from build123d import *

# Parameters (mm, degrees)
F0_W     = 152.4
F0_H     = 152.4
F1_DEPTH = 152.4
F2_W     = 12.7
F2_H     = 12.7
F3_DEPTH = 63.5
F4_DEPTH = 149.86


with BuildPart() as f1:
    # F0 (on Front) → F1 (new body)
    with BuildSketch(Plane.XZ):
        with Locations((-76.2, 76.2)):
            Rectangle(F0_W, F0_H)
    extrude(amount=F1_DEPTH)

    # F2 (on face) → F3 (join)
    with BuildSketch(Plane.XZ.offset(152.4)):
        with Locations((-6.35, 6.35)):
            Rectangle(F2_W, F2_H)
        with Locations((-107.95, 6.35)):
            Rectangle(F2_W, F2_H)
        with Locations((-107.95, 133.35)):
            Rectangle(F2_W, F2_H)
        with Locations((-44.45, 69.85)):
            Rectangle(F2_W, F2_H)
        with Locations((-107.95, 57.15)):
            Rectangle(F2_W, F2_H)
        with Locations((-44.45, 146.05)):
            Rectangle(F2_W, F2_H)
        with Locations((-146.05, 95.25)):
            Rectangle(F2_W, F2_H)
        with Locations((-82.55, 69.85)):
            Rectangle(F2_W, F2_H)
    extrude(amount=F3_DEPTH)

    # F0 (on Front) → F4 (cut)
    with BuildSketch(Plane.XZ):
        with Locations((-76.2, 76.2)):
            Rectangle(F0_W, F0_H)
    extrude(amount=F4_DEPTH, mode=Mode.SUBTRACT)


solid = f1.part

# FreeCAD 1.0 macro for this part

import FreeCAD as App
import Part
import Sketcher
Q = App.Units.Quantity

doc = App.newDocument("Part")
body = doc.addObject("PartDesign::Body", "Body")

sketch1 = doc.addObject("Sketcher::SketchObject", "Sketch")
body.addObject(sketch1)
sketch1.AttachmentSupport = (doc.XZ_Plane, [""])
sketch1.MapMode = "FlatFace"
sketch1.addGeometry(Part.LineSegment(App.Vector(-152, 152, 0), App.Vector(-152, 0, 0)), False)
sketch1.addGeometry(Part.LineSegment(App.Vector(-152, 0, 0), App.Vector(0, 0, 0)), False)
sketch1.addGeometry(Part.LineSegment(App.Vector(0, 0, 0), App.Vector(0, 152, 0)), False)
sketch1.addGeometry(Part.LineSegment(App.Vector(0, 152, 0), App.Vector(-152, 152, 0)), False)
sketch1.addConstraint(Sketcher.Constraint("Coincident", 0, 2, 1, 1))
sketch1.addConstraint(Sketcher.Constraint("Coincident", 1, 2, 2, 1))
sketch1.addConstraint(Sketcher.Constraint("Coincident", 2, 2, 3, 1))
sketch1.addConstraint(Sketcher.Constraint("Coincident", 3, 2, 0, 1))
sketch1.addConstraint(Sketcher.Constraint("Vertical", 0))
sketch1.addConstraint(Sketcher.Constraint("Horizontal", 1))
sketch1.addConstraint(Sketcher.Constraint("Vertical", 2))
sketch1.addConstraint(Sketcher.Constraint("Horizontal", 3))
sketch1.addConstraint(Sketcher.Constraint("Coincident", 1, 2, -1, 1))
sketch1.addConstraint(Sketcher.Constraint("Equal", 3, 0))
sketch1.addConstraint(Sketcher.Constraint("DistanceX", 1, 1, 1, 2, Q("6 in")))
pad1 = doc.addObject("PartDesign::Pad", "Pad")
body.addObject(pad1)
pad1.Profile = sketch1
pad1.Length = Q("6 in")

sketch2 = doc.addObject("Sketcher::SketchObject", "Sketch001")
body.addObject(sketch2)
sketch2.AttachmentSupport = (doc.XZ_Plane, [""])
sketch2.MapMode = "FlatFace"
sketch2.AttachmentOffset = App.Placement(App.Vector(0, 0, 6 * 25.4), App.Rotation())
sketch2.addGeometry(Part.LineSegment(App.Vector(-13, 13, 0), App.Vector(-13, 0, 0)), False)
sketch2.addGeometry(Part.LineSegment(App.Vector(-13, 0, 0), App.Vector(0, 0, 0)), False)
sketch2.addGeometry(Part.LineSegment(App.Vector(0, 0, 0), App.Vector(0, 13, 0)), False)
sketch2.addGeometry(Part.LineSegment(App.Vector(0, 13, 0), App.Vector(-13, 13, 0)), False)
sketch2.addGeometry(Part.LineSegment(App.Vector(-114, 13, 0), App.Vector(-114, 0, 0)), False)
sketch2.addGeometry(Part.LineSegment(App.Vector(-114, 0, 0), App.Vector(-102, 0, 0)), False)
sketch2.addGeometry(Part.LineSegment(App.Vector(-102, 0, 0), App.Vector(-102, 13, 0)), False)
sketch2.addGeometry(Part.LineSegment(App.Vector(-102, 13, 0), App.Vector(-114, 13, 0)), False)
sketch2.addGeometry(Part.LineSegment(App.Vector(-114, 140, 0), App.Vector(-114, 127, 0)), False)
sketch2.addGeometry(Part.LineSegment(App.Vector(-114, 127, 0), App.Vector(-102, 127, 0)), False)
sketch2.addGeometry(Part.LineSegment(App.Vector(-102, 127, 0), App.Vector(-102, 140, 0)), False)
sketch2.addGeometry(Part.LineSegment(App.Vector(-102, 140, 0), App.Vector(-114, 140, 0)), False)
sketch2.addGeometry(Part.LineSegment(App.Vector(-51, 76, 0), App.Vector(-51, 64, 0)), False)
sketch2.addGeometry(Part.LineSegment(App.Vector(-51, 64, 0), App.Vector(-38, 64, 0)), False)
sketch2.addGeometry(Part.LineSegment(App.Vector(-38, 64, 0), App.Vector(-38, 76, 0)), False)
sketch2.addGeometry(Part.LineSegment(App.Vector(-38, 76, 0), App.Vector(-51, 76, 0)), False)
sketch2.addGeometry(Part.LineSegment(App.Vector(-114, 64, 0), App.Vector(-114, 51, 0)), False)
sketch2.addGeometry(Part.LineSegment(App.Vector(-114, 51, 0), App.Vector(-102, 51, 0)), False)
sketch2.addGeometry(Part.LineSegment(App.Vector(-102, 51, 0), App.Vector(-102, 64, 0)), False)
sketch2.addGeometry(Part.LineSegment(App.Vector(-102, 64, 0), App.Vector(-114, 64, 0)), False)
sketch2.addGeometry(Part.LineSegment(App.Vector(-51, 152, 0), App.Vector(-51, 140, 0)), False)
sketch2.addGeometry(Part.LineSegment(App.Vector(-51, 140, 0), App.Vector(-38, 140, 0)), False)
sketch2.addGeometry(Part.LineSegment(App.Vector(-38, 140, 0), App.Vector(-38, 152, 0)), False)
sketch2.addGeometry(Part.LineSegment(App.Vector(-38, 152, 0), App.Vector(-51, 152, 0)), False)
sketch2.addGeometry(Part.LineSegment(App.Vector(-152, 102, 0), App.Vector(-152, 89, 0)), False)
sketch2.addGeometry(Part.LineSegment(App.Vector(-152, 89, 0), App.Vector(-140, 89, 0)), False)
sketch2.addGeometry(Part.LineSegment(App.Vector(-140, 89, 0), App.Vector(-140, 102, 0)), False)
sketch2.addGeometry(Part.LineSegment(App.Vector(-140, 102, 0), App.Vector(-152, 102, 0)), False)
sketch2.addGeometry(Part.LineSegment(App.Vector(-89, 76, 0), App.Vector(-89, 64, 0)), False)
sketch2.addGeometry(Part.LineSegment(App.Vector(-89, 64, 0), App.Vector(-76, 64, 0)), False)
sketch2.addGeometry(Part.LineSegment(App.Vector(-76, 64, 0), App.Vector(-76, 76, 0)), False)
sketch2.addGeometry(Part.LineSegment(App.Vector(-76, 76, 0), App.Vector(-89, 76, 0)), False)
sketch2.addConstraint(Sketcher.Constraint("Coincident", 0, 2, 1, 1))
sketch2.addConstraint(Sketcher.Constraint("Coincident", 1, 2, 2, 1))
sketch2.addConstraint(Sketcher.Constraint("Coincident", 2, 2, 3, 1))
sketch2.addConstraint(Sketcher.Constraint("Coincident", 3, 2, 0, 1))
sketch2.addConstraint(Sketcher.Constraint("Coincident", 4, 2, 5, 1))
sketch2.addConstraint(Sketcher.Constraint("Coincident", 5, 2, 6, 1))
sketch2.addConstraint(Sketcher.Constraint("Coincident", 6, 2, 7, 1))
sketch2.addConstraint(Sketcher.Constraint("Coincident", 7, 2, 4, 1))
sketch2.addConstraint(Sketcher.Constraint("Coincident", 8, 2, 9, 1))
sketch2.addConstraint(Sketcher.Constraint("Coincident", 9, 2, 10, 1))
sketch2.addConstraint(Sketcher.Constraint("Coincident", 10, 2, 11, 1))
sketch2.addConstraint(Sketcher.Constraint("Coincident", 11, 2, 8, 1))
sketch2.addConstraint(Sketcher.Constraint("Coincident", 12, 2, 13, 1))
sketch2.addConstraint(Sketcher.Constraint("Coincident", 13, 2, 14, 1))
sketch2.addConstraint(Sketcher.Constraint("Coincident", 14, 2, 15, 1))
sketch2.addConstraint(Sketcher.Constraint("Coincident", 15, 2, 12, 1))
sketch2.addConstraint(Sketcher.Constraint("Coincident", 16, 2, 17, 1))
sketch2.addConstraint(Sketcher.Constraint("Coincident", 17, 2, 18, 1))
sketch2.addConstraint(Sketcher.Constraint("Coincident", 18, 2, 19, 1))
sketch2.addConstraint(Sketcher.Constraint("Coincident", 19, 2, 16, 1))
sketch2.addConstraint(Sketcher.Constraint("Coincident", 20, 2, 21, 1))
sketch2.addConstraint(Sketcher.Constraint("Coincident", 21, 2, 22, 1))
sketch2.addConstraint(Sketcher.Constraint("Coincident", 22, 2, 23, 1))
sketch2.addConstraint(Sketcher.Constraint("Coincident", 23, 2, 20, 1))
sketch2.addConstraint(Sketcher.Constraint("Coincident", 24, 2, 25, 1))
sketch2.addConstraint(Sketcher.Constraint("Coincident", 25, 2, 26, 1))
sketch2.addConstraint(Sketcher.Constraint("Coincident", 26, 2, 27, 1))
sketch2.addConstraint(Sketcher.Constraint("Coincident", 27, 2, 24, 1))
sketch2.addConstraint(Sketcher.Constraint("Coincident", 28, 2, 29, 1))
sketch2.addConstraint(Sketcher.Constraint("Coincident", 29, 2, 30, 1))
sketch2.addConstraint(Sketcher.Constraint("Coincident", 30, 2, 31, 1))
sketch2.addConstraint(Sketcher.Constraint("Coincident", 31, 2, 28, 1))
sketch2.addConstraint(Sketcher.Constraint("Vertical", 0))
sketch2.addConstraint(Sketcher.Constraint("Horizontal", 1))
sketch2.addConstraint(Sketcher.Constraint("Vertical", 2))
sketch2.addConstraint(Sketcher.Constraint("Horizontal", 3))
sketch2.addConstraint(Sketcher.Constraint("Vertical", 4))
sketch2.addConstraint(Sketcher.Constraint("Horizontal", 5))
sketch2.addConstraint(Sketcher.Constraint("Vertical", 6))
sketch2.addConstraint(Sketcher.Constraint("Horizontal", 7))
sketch2.addConstraint(Sketcher.Constraint("Vertical", 8))
sketch2.addConstraint(Sketcher.Constraint("Horizontal", 9))
sketch2.addConstraint(Sketcher.Constraint("Vertical", 10))
sketch2.addConstraint(Sketcher.Constraint("Horizontal", 11))
sketch2.addConstraint(Sketcher.Constraint("Vertical", 12))
sketch2.addConstraint(Sketcher.Constraint("Horizontal", 13))
sketch2.addConstraint(Sketcher.Constraint("Vertical", 14))
sketch2.addConstraint(Sketcher.Constraint("Horizontal", 15))
sketch2.addConstraint(Sketcher.Constraint("Vertical", 16))
sketch2.addConstraint(Sketcher.Constraint("Horizontal", 17))
sketch2.addConstraint(Sketcher.Constraint("Vertical", 18))
sketch2.addConstraint(Sketcher.Constraint("Horizontal", 19))
sketch2.addConstraint(Sketcher.Constraint("Vertical", 20))
sketch2.addConstraint(Sketcher.Constraint("Horizontal", 21))
sketch2.addConstraint(Sketcher.Constraint("Vertical", 22))
sketch2.addConstraint(Sketcher.Constraint("Horizontal", 23))
sketch2.addConstraint(Sketcher.Constraint("Vertical", 24))
sketch2.addConstraint(Sketcher.Constraint("Horizontal", 25))
sketch2.addConstraint(Sketcher.Constraint("Vertical", 26))
sketch2.addConstraint(Sketcher.Constraint("Horizontal", 27))
sketch2.addConstraint(Sketcher.Constraint("Vertical", 28))
sketch2.addConstraint(Sketcher.Constraint("Horizontal", 29))
sketch2.addConstraint(Sketcher.Constraint("Vertical", 30))
sketch2.addConstraint(Sketcher.Constraint("Horizontal", 31))
sketch2.addConstraint(Sketcher.Constraint("Coincident", 1, 2, -1, 1))
sketch2.addConstraint(Sketcher.Constraint("PointOnObject", 4, 2, -1))
sketch2.addConstraint(Sketcher.Constraint("Horizontal", 3, 2, 6, 2))
sketch2.addConstraint(Sketcher.Constraint("Horizontal", 13, 2, 18, 2))
sketch2.addConstraint(Sketcher.Constraint("Horizontal", 11, 2, 20, 2))
sketch2.addConstraint(Sketcher.Constraint("Horizontal", 19, 2, 28, 2))
sketch2.addConstraint(Sketcher.Constraint("Horizontal", 15, 2, 30, 2))
sketch2.addConstraint(Sketcher.Constraint("Vertical", 7, 2, 8, 2))
sketch2.addConstraint(Sketcher.Constraint("Vertical", 6, 2, 9, 2))
sketch2.addConstraint(Sketcher.Constraint("Vertical", 11, 2, 16, 2))
sketch2.addConstraint(Sketcher.Constraint("Vertical", 10, 2, 17, 2))
sketch2.addConstraint(Sketcher.Constraint("Vertical", 15, 2, 20, 2))
sketch2.addConstraint(Sketcher.Constraint("Vertical", 14, 2, 21, 2))
sketch2.addConstraint(Sketcher.Constraint("Equal", 3, 5))
sketch2.addConstraint(Sketcher.Constraint("Equal", 11, 13))
sketch2.addConstraint(Sketcher.Constraint("Equal", 23, 25))
sketch2.addConstraint(Sketcher.Constraint("Equal", 27, 29))
sketch2.addConstraint(Sketcher.Constraint("Equal", 31, 0))
sketch2.addConstraint(Sketcher.Constraint("Equal", 6, 8))
sketch2.addConstraint(Sketcher.Constraint("Equal", 10, 12))
sketch2.addConstraint(Sketcher.Constraint("Equal", 14, 16))
sketch2.addConstraint(Sketcher.Constraint("Equal", 18, 20))
sketch2.addConstraint(Sketcher.Constraint("Equal", 22, 24))
sketch2.addConstraint(Sketcher.Constraint("DistanceX", 1, 1, 1, 2, Q("0.5 in")))
sketch2.addConstraint(Sketcher.Constraint("DistanceX", 5, 2, -1, 1, Q("4 in")))
sketch2.addConstraint(Sketcher.Constraint("DistanceY", -1, 1, 8, 2, Q("5 in")))
sketch2.addConstraint(Sketcher.Constraint("DistanceX", 12, 2, -1, 1, Q("2 in")))
sketch2.addConstraint(Sketcher.Constraint("DistanceY", -1, 1, 14, 2, Q("3 in")))
sketch2.addConstraint(Sketcher.Constraint("DistanceX", 24, 2, -1, 1, Q("6 in")))
sketch2.addConstraint(Sketcher.Constraint("DistanceY", -1, 1, 26, 2, Q("4 in")))
sketch2.addConstraint(Sketcher.Constraint("DistanceX", 29, 2, -1, 1, Q("3 in")))
pad2 = doc.addObject("PartDesign::Pad", "Pad001")
body.addObject(pad2)
pad2.Profile = sketch2
pad2.Length = Q("2.5 in")

sketch3 = doc.addObject("Sketcher::SketchObject", "Sketch002")
body.addObject(sketch3)
sketch3.AttachmentSupport = (doc.XZ_Plane, [""])
sketch3.MapMode = "FlatFace"
sketch3.addGeometry(Part.LineSegment(App.Vector(-152, 152, 0), App.Vector(-152, 0, 0)), False)
sketch3.addGeometry(Part.LineSegment(App.Vector(-152, 0, 0), App.Vector(0, 0, 0)), False)
sketch3.addGeometry(Part.LineSegment(App.Vector(0, 0, 0), App.Vector(0, 152, 0)), False)
sketch3.addGeometry(Part.LineSegment(App.Vector(0, 152, 0), App.Vector(-152, 152, 0)), False)
sketch3.addConstraint(Sketcher.Constraint("Coincident", 0, 2, 1, 1))
sketch3.addConstraint(Sketcher.Constraint("Coincident", 1, 2, 2, 1))
sketch3.addConstraint(Sketcher.Constraint("Coincident", 2, 2, 3, 1))
sketch3.addConstraint(Sketcher.Constraint("Coincident", 3, 2, 0, 1))
sketch3.addConstraint(Sketcher.Constraint("Vertical", 0))
sketch3.addConstraint(Sketcher.Constraint("Horizontal", 1))
sketch3.addConstraint(Sketcher.Constraint("Vertical", 2))
sketch3.addConstraint(Sketcher.Constraint("Horizontal", 3))
sketch3.addConstraint(Sketcher.Constraint("Coincident", 1, 2, -1, 1))
sketch3.addConstraint(Sketcher.Constraint("Equal", 3, 0))
sketch3.addConstraint(Sketcher.Constraint("DistanceX", 1, 1, 1, 2, Q("6 in")))
pocket1 = doc.addObject("PartDesign::Pocket", "Pocket")
body.addObject(pocket1)
pocket1.Profile = sketch3
pocket1.Length = Q("5.9 in")
pocket1.Reversed = True

doc.recompute()
